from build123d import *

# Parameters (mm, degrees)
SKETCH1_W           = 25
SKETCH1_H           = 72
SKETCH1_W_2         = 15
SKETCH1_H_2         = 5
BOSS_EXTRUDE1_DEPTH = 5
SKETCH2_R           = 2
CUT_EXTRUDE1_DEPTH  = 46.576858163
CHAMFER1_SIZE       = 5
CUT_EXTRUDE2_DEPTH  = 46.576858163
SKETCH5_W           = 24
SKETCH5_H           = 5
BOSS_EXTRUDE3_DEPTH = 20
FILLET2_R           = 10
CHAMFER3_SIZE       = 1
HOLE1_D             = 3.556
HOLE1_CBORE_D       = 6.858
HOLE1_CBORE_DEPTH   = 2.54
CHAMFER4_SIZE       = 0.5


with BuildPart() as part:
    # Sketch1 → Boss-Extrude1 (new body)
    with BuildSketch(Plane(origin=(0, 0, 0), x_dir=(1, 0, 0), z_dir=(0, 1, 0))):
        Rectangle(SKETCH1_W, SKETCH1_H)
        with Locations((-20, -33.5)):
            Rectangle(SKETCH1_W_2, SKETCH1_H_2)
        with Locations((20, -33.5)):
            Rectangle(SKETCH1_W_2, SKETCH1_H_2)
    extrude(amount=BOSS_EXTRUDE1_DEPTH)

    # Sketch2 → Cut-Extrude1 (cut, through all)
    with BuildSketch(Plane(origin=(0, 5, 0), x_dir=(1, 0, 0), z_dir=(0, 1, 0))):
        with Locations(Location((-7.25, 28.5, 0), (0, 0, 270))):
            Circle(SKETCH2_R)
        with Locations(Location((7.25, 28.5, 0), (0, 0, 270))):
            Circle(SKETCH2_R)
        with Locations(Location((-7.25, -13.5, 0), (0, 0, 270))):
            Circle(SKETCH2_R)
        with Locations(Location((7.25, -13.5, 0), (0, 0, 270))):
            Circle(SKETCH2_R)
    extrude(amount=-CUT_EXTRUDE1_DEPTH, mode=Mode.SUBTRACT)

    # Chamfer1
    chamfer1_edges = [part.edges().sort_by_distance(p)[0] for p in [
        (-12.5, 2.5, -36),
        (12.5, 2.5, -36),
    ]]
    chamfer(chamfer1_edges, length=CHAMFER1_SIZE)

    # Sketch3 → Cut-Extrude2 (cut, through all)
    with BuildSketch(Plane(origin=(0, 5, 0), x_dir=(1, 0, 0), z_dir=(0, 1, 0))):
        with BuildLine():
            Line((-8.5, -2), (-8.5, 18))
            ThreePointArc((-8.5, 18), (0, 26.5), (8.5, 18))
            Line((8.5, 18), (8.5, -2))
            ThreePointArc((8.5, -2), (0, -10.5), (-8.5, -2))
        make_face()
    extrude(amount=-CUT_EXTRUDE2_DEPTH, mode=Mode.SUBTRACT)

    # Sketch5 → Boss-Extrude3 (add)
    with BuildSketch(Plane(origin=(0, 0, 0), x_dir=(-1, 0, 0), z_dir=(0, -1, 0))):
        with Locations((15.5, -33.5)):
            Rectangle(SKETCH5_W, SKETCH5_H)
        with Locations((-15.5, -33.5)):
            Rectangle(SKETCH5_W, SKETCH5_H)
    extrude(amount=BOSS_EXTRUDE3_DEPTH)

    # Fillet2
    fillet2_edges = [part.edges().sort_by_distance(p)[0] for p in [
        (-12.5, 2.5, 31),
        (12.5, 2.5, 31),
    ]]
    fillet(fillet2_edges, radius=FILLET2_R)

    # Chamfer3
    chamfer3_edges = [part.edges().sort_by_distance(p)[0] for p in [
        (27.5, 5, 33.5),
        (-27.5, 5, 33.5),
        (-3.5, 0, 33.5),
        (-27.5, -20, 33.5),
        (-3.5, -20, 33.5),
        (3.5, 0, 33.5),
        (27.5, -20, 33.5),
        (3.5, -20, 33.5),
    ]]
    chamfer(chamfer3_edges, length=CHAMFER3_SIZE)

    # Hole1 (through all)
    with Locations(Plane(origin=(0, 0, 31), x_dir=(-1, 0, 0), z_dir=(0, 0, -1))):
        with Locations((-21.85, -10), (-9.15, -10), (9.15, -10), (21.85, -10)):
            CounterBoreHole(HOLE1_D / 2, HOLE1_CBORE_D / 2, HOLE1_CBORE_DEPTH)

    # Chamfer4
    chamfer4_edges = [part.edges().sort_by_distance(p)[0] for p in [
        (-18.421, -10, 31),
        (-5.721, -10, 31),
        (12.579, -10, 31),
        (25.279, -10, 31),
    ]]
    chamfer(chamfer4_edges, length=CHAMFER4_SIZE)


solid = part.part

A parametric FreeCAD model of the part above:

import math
import FreeCAD as App
import Part
import Sketcher
from FreeCAD import Vector


def edges_at(feature, points):
    """Names of the edges that pass closest to the given points."""
    edges = feature.Shape.Edges
    near = lambda p: min(range(len(edges)), key=lambda i: edges[i].distToShape(Part.Vertex(*p))[0])
    return sorted({f"Edge{near(p) + 1}" for p in points})


def add_polygon(sketch, points):
    """Adds a closed chain of lines whose ends are joined by coincident constraints."""
    first, n = sketch.GeometryCount, len(points)
    for a, b in zip(points, points[1:] + points[:1]):
        sketch.addGeometry(Part.LineSegment(App.Vector(*a, 0), App.Vector(*b, 0)), False)
    for i in range(n):
        sketch.addConstraint(Sketcher.Constraint("Coincident", first + i, 2, first + (i + 1) % n, 1))

doc = App.newDocument("Part")
body = doc.addObject("PartDesign::Body", "Body")

sketch1 = body.newObject("Sketcher::SketchObject", "Sketch")
sketch1.AttachmentSupport = (doc.getObject("XZ_Plane"), [""])
sketch1.MapMode = "FlatFace"
add_polygon(sketch1, [(-12, -36), (-12, 31), (-28, 31), (-28, 36), (28, 36), (28, 31), (12, 31), (12, -36)])
sketch1.addConstraint([
    Sketcher.Constraint("Vertical", 0),
    Sketcher.Constraint("Horizontal", 1),
    Sketcher.Constraint("Vertical", 2),
    Sketcher.Constraint("Horizontal", 3),
    Sketcher.Constraint("Vertical", 4),
    Sketcher.Constraint("Horizontal", 5),
    Sketcher.Constraint("Vertical", 6),
    Sketcher.Constraint("Horizontal", 7),
    Sketcher.Constraint("Symmetric", 1, 2, 4, 2, -2),
    Sketcher.Constraint("Equal", 1, 5),
    Sketcher.Constraint("DistanceX", 1, 2, 1, 1, 15.0),
    Sketcher.Constraint("DistanceX", 3, 1, 3, 2, 55.0),
    Sketcher.Constraint("DistanceY", 0, 1, 0, 2, 67.0),
    Sketcher.Constraint("DistanceY", 2, 1, 2, 2, 5.0),
    Sketcher.Constraint("DistanceY", -1, 1, 0, 2, 31.0),
])
pad1 = body.newObject("PartDesign::Pad", "Pad")
pad1.Profile = sketch1
pad1.Length = 5
pad1.Reversed = True

sketch2 = body.newObject("Sketcher::SketchObject", "Sketch001")
sketch2.AttachmentSupport = (doc.getObject("XZ_Plane"), [""])
sketch2.MapMode = "FlatFace"
sketch2.AttachmentOffset = App.Placement(Vector(0, 0, -5), App.Rotation())
sketch2.addGeometry([
    Part.Circle(Vector(-7.2, -28.5, 0), Vector(0, 0, 1), 2),
    Part.Circle(Vector(7.2, -28.5, 0), Vector(0, 0, 1), 2),
    Part.Circle(Vector(-7.2, 13.5, 0), Vector(0, 0, 1), 2),
    Part.Circle(Vector(7.2, 13.5, 0), Vector(0, 0, 1), 2),
], False)
sketch2.addConstraint([
    Sketcher.Constraint("Equal", 0, 1),
    Sketcher.Constraint("Equal", 1, 2),
    Sketcher.Constraint("Equal", 2, 3),
    Sketcher.Constraint("Symmetric", 0, 3, 1, 3, -2),
    Sketcher.Constraint("Symmetric", 2, 3, 3, 3, -2),
    Sketcher.Constraint("Vertical", 0, 3, 2, 3),
    Sketcher.Constraint("Diameter", 0, 4.0),
    Sketcher.Constraint("DistanceY", 0, 3, 2, 3, 42.0),
    Sketcher.Constraint("DistanceY", 0, 3, -1, 1, 28.5),
    Sketcher.Constraint("DistanceX", 0, 3, 1, 3, 14.5),
])
pocket1 = body.newObject("PartDesign::Pocket", "Pocket")
pocket1.Profile = sketch2
pocket1.Type = "ThroughAll"
pocket1.Reversed = True
doc.recompute()

chamfer = body.newObject("PartDesign::Chamfer", "Chamfer")
chamfer.Base = (pocket1, edges_at(pocket1, [(-12.5, 2.5, -36), (12.5, 2.5, -36)]))
chamfer.Size = 5

sketch3 = body.newObject("Sketcher::SketchObject", "Sketch002")
sketch3.AttachmentSupport = (doc.getObject("XZ_Plane"), [""])
sketch3.MapMode = "FlatFace"
sketch3.AttachmentOffset = App.Placement(Vector(0, 0, -5), App.Rotation())
sketch3.addGeometry([
    Part.LineSegment(Vector(-8, -18, 0), Vector(-8, 2, 0)),
    Part.ArcOfCircle(Part.Circle(Vector(0, 2, 0), Vector(0, 0, 1), 8), math.radians(0), math.radians(180)),
    Part.LineSegment(Vector(8, 2, 0), Vector(8, -18, 0)),
    Part.ArcOfCircle(Part.Circle(Vector(0, -18, 0), Vector(0, 0, 1), 8), math.radians(180), math.radians(360)),
], False)
sketch3.addConstraint([
    Sketcher.Constraint("Tangent", 0, 2, 1, 2),
    Sketcher.Constraint("Tangent", 1, 1, 2, 1),
    Sketcher.Constraint("Tangent", 2, 2, 3, 2),
    Sketcher.Constraint("Tangent", 3, 1, 0, 1),
    Sketcher.Constraint("Vertical", 0),
    Sketcher.Constraint("Vertical", 2),
    Sketcher.Constraint("PointOnObject", 1, 3, -2),
    Sketcher.Constraint("Radius", 1, 8.5),
    Sketcher.Constraint("DistanceY", 0, 1, 0, 2, 20.0),
    Sketcher.Constraint("DistanceY", -1, 1, 1, 3, 2.0),
])
pocket2 = body.newObject("PartDesign::Pocket", "Pocket001")
pocket2.Profile = sketch3
pocket2.Type = "ThroughAll"
pocket2.Reversed = True

sketch4 = body.newObject("Sketcher::SketchObject", "Sketch003")
sketch4.AttachmentSupport = (doc.getObject("XZ_Plane"), [""])
sketch4.MapMode = "FlatFace"
add_polygon(sketch4, [(-4, 31), (-4, 36), (-28, 36), (-28, 31)])
add_polygon(sketch4, [(28, 31), (28, 36), (4, 36), (4, 31)])
sketch4.addConstraint([
    Sketcher.Constraint("Vertical", 0),
    Sketcher.Constraint("Horizontal", 1),
    Sketcher.Constraint("Vertical", 2),
    Sketcher.Constraint("Horizontal", 3),
    Sketcher.Constraint("Vertical", 4),
    Sketcher.Constraint("Horizontal", 5),
    Sketcher.Constraint("Vertical", 6),
    Sketcher.Constraint("Horizontal", 7),
    Sketcher.Constraint("Symmetric", 1, 2, 4, 2, -2),
    Sketcher.Constraint("Symmetric", 3, 2, 6, 2, -2),
    Sketcher.Constraint("DistanceX", 1, 2, 1, 1, 24.0),
    Sketcher.Constraint("DistanceY", 0, 1, 0, 2, 5.0),
    Sketcher.Constraint("DistanceY", -1, 1, 0, 2, 36.0),
    Sketcher.Constraint("DistanceX", 0, 2, 4, 2, 31.0),
])
pad2 = body.newObject("PartDesign::Pad", "Pad001")
pad2.Profile = sketch4
pad2.Length = 20
doc.recompute()

fillet = body.newObject("PartDesign::Fillet", "Fillet")
fillet.Base = (pad2, edges_at(pad2, [(-12.5, 2.5, 31), (12.5, 2.5, 31)]))
fillet.Radius = 10
doc.recompute()

chamfer2 = body.newObject("PartDesign::Chamfer", "Chamfer001")
chamfer2.Base = (fillet, edges_at(fillet, [
    (27.5, 5, 33.5),
    (-27.5, 5, 33.5),
    (-3.5, 0, 33.5),
    (-27.5, -20, 33.5),
    (-3.5, -20, 33.5),
    (3.5, 0, 33.5),
    (27.5, -20, 33.5),
    (3.5, -20, 33.5),
]))
chamfer2.Size = 1

sketch5 = body.newObject("Sketcher::SketchObject", "Sketch004")
sketch5.AttachmentSupport = (doc.getObject("XY_Plane"), [""])
sketch5.MapMode = "FlatFace"
sketch5.AttachmentOffset = App.Placement(Vector(0, 0, 31), App.Rotation())
sketch5.addGeometry([
    Part.Circle(Vector(21.9, -10, 0), Vector(0, 0, 1), 1.8),
    Part.Circle(Vector(9.2, -10, 0), Vector(0, 0, 1), 1.8),
    Part.Circle(Vector(-9.2, -10, 0), Vector(0, 0, 1), 1.8),
    Part.Circle(Vector(-21.9, -10, 0), Vector(0, 0, 1), 1.8),
], False)
sketch5.addConstraint([
    Sketcher.Constraint("Equal", 0, 1),
    Sketcher.Constraint("Equal", 1, 2),
    Sketcher.Constraint("Equal", 2, 3),
    Sketcher.Constraint("Symmetric", 1, 3, 2, 3, -2),
    Sketcher.Constraint("Symmetric", 0, 3, 3, 3, -2),
    Sketcher.Constraint("Horizontal", 0, 3, 1, 3),
    Sketcher.Constraint("Diameter", 0, 3.556),
    Sketcher.Constraint("DistanceY", 0, 3, -1, 1, 10.0),
    Sketcher.Constraint("DistanceX", 2, 3, 0, 3, 31.0),
    Sketcher.Constraint("DistanceX", 1, 3, 0, 3, 12.7),
])
doc.recompute()
hole = body.newObject("PartDesign::Hole", "Hole")
hole.Profile = sketch5
hole.ThreadType = "None"
hole.Diameter = 3.556
hole.DepthType = "ThroughAll"
hole.HoleCutType = "Counterbore"
hole.HoleCutDiameter = 6.858
hole.HoleCutDepth = 2.54
hole.Reversed = True
doc.recompute()

chamfer3 = body.newObject("PartDesign::Chamfer", "Chamfer002")
chamfer3.Base = (hole, edges_at(hole, [
    (-18.421, -10, 31),
    (-5.721, -10, 31),
    (12.579, -10, 31),
    (25.279, -10, 31),
]))
chamfer3.Size = 0.5

doc.recompute()
